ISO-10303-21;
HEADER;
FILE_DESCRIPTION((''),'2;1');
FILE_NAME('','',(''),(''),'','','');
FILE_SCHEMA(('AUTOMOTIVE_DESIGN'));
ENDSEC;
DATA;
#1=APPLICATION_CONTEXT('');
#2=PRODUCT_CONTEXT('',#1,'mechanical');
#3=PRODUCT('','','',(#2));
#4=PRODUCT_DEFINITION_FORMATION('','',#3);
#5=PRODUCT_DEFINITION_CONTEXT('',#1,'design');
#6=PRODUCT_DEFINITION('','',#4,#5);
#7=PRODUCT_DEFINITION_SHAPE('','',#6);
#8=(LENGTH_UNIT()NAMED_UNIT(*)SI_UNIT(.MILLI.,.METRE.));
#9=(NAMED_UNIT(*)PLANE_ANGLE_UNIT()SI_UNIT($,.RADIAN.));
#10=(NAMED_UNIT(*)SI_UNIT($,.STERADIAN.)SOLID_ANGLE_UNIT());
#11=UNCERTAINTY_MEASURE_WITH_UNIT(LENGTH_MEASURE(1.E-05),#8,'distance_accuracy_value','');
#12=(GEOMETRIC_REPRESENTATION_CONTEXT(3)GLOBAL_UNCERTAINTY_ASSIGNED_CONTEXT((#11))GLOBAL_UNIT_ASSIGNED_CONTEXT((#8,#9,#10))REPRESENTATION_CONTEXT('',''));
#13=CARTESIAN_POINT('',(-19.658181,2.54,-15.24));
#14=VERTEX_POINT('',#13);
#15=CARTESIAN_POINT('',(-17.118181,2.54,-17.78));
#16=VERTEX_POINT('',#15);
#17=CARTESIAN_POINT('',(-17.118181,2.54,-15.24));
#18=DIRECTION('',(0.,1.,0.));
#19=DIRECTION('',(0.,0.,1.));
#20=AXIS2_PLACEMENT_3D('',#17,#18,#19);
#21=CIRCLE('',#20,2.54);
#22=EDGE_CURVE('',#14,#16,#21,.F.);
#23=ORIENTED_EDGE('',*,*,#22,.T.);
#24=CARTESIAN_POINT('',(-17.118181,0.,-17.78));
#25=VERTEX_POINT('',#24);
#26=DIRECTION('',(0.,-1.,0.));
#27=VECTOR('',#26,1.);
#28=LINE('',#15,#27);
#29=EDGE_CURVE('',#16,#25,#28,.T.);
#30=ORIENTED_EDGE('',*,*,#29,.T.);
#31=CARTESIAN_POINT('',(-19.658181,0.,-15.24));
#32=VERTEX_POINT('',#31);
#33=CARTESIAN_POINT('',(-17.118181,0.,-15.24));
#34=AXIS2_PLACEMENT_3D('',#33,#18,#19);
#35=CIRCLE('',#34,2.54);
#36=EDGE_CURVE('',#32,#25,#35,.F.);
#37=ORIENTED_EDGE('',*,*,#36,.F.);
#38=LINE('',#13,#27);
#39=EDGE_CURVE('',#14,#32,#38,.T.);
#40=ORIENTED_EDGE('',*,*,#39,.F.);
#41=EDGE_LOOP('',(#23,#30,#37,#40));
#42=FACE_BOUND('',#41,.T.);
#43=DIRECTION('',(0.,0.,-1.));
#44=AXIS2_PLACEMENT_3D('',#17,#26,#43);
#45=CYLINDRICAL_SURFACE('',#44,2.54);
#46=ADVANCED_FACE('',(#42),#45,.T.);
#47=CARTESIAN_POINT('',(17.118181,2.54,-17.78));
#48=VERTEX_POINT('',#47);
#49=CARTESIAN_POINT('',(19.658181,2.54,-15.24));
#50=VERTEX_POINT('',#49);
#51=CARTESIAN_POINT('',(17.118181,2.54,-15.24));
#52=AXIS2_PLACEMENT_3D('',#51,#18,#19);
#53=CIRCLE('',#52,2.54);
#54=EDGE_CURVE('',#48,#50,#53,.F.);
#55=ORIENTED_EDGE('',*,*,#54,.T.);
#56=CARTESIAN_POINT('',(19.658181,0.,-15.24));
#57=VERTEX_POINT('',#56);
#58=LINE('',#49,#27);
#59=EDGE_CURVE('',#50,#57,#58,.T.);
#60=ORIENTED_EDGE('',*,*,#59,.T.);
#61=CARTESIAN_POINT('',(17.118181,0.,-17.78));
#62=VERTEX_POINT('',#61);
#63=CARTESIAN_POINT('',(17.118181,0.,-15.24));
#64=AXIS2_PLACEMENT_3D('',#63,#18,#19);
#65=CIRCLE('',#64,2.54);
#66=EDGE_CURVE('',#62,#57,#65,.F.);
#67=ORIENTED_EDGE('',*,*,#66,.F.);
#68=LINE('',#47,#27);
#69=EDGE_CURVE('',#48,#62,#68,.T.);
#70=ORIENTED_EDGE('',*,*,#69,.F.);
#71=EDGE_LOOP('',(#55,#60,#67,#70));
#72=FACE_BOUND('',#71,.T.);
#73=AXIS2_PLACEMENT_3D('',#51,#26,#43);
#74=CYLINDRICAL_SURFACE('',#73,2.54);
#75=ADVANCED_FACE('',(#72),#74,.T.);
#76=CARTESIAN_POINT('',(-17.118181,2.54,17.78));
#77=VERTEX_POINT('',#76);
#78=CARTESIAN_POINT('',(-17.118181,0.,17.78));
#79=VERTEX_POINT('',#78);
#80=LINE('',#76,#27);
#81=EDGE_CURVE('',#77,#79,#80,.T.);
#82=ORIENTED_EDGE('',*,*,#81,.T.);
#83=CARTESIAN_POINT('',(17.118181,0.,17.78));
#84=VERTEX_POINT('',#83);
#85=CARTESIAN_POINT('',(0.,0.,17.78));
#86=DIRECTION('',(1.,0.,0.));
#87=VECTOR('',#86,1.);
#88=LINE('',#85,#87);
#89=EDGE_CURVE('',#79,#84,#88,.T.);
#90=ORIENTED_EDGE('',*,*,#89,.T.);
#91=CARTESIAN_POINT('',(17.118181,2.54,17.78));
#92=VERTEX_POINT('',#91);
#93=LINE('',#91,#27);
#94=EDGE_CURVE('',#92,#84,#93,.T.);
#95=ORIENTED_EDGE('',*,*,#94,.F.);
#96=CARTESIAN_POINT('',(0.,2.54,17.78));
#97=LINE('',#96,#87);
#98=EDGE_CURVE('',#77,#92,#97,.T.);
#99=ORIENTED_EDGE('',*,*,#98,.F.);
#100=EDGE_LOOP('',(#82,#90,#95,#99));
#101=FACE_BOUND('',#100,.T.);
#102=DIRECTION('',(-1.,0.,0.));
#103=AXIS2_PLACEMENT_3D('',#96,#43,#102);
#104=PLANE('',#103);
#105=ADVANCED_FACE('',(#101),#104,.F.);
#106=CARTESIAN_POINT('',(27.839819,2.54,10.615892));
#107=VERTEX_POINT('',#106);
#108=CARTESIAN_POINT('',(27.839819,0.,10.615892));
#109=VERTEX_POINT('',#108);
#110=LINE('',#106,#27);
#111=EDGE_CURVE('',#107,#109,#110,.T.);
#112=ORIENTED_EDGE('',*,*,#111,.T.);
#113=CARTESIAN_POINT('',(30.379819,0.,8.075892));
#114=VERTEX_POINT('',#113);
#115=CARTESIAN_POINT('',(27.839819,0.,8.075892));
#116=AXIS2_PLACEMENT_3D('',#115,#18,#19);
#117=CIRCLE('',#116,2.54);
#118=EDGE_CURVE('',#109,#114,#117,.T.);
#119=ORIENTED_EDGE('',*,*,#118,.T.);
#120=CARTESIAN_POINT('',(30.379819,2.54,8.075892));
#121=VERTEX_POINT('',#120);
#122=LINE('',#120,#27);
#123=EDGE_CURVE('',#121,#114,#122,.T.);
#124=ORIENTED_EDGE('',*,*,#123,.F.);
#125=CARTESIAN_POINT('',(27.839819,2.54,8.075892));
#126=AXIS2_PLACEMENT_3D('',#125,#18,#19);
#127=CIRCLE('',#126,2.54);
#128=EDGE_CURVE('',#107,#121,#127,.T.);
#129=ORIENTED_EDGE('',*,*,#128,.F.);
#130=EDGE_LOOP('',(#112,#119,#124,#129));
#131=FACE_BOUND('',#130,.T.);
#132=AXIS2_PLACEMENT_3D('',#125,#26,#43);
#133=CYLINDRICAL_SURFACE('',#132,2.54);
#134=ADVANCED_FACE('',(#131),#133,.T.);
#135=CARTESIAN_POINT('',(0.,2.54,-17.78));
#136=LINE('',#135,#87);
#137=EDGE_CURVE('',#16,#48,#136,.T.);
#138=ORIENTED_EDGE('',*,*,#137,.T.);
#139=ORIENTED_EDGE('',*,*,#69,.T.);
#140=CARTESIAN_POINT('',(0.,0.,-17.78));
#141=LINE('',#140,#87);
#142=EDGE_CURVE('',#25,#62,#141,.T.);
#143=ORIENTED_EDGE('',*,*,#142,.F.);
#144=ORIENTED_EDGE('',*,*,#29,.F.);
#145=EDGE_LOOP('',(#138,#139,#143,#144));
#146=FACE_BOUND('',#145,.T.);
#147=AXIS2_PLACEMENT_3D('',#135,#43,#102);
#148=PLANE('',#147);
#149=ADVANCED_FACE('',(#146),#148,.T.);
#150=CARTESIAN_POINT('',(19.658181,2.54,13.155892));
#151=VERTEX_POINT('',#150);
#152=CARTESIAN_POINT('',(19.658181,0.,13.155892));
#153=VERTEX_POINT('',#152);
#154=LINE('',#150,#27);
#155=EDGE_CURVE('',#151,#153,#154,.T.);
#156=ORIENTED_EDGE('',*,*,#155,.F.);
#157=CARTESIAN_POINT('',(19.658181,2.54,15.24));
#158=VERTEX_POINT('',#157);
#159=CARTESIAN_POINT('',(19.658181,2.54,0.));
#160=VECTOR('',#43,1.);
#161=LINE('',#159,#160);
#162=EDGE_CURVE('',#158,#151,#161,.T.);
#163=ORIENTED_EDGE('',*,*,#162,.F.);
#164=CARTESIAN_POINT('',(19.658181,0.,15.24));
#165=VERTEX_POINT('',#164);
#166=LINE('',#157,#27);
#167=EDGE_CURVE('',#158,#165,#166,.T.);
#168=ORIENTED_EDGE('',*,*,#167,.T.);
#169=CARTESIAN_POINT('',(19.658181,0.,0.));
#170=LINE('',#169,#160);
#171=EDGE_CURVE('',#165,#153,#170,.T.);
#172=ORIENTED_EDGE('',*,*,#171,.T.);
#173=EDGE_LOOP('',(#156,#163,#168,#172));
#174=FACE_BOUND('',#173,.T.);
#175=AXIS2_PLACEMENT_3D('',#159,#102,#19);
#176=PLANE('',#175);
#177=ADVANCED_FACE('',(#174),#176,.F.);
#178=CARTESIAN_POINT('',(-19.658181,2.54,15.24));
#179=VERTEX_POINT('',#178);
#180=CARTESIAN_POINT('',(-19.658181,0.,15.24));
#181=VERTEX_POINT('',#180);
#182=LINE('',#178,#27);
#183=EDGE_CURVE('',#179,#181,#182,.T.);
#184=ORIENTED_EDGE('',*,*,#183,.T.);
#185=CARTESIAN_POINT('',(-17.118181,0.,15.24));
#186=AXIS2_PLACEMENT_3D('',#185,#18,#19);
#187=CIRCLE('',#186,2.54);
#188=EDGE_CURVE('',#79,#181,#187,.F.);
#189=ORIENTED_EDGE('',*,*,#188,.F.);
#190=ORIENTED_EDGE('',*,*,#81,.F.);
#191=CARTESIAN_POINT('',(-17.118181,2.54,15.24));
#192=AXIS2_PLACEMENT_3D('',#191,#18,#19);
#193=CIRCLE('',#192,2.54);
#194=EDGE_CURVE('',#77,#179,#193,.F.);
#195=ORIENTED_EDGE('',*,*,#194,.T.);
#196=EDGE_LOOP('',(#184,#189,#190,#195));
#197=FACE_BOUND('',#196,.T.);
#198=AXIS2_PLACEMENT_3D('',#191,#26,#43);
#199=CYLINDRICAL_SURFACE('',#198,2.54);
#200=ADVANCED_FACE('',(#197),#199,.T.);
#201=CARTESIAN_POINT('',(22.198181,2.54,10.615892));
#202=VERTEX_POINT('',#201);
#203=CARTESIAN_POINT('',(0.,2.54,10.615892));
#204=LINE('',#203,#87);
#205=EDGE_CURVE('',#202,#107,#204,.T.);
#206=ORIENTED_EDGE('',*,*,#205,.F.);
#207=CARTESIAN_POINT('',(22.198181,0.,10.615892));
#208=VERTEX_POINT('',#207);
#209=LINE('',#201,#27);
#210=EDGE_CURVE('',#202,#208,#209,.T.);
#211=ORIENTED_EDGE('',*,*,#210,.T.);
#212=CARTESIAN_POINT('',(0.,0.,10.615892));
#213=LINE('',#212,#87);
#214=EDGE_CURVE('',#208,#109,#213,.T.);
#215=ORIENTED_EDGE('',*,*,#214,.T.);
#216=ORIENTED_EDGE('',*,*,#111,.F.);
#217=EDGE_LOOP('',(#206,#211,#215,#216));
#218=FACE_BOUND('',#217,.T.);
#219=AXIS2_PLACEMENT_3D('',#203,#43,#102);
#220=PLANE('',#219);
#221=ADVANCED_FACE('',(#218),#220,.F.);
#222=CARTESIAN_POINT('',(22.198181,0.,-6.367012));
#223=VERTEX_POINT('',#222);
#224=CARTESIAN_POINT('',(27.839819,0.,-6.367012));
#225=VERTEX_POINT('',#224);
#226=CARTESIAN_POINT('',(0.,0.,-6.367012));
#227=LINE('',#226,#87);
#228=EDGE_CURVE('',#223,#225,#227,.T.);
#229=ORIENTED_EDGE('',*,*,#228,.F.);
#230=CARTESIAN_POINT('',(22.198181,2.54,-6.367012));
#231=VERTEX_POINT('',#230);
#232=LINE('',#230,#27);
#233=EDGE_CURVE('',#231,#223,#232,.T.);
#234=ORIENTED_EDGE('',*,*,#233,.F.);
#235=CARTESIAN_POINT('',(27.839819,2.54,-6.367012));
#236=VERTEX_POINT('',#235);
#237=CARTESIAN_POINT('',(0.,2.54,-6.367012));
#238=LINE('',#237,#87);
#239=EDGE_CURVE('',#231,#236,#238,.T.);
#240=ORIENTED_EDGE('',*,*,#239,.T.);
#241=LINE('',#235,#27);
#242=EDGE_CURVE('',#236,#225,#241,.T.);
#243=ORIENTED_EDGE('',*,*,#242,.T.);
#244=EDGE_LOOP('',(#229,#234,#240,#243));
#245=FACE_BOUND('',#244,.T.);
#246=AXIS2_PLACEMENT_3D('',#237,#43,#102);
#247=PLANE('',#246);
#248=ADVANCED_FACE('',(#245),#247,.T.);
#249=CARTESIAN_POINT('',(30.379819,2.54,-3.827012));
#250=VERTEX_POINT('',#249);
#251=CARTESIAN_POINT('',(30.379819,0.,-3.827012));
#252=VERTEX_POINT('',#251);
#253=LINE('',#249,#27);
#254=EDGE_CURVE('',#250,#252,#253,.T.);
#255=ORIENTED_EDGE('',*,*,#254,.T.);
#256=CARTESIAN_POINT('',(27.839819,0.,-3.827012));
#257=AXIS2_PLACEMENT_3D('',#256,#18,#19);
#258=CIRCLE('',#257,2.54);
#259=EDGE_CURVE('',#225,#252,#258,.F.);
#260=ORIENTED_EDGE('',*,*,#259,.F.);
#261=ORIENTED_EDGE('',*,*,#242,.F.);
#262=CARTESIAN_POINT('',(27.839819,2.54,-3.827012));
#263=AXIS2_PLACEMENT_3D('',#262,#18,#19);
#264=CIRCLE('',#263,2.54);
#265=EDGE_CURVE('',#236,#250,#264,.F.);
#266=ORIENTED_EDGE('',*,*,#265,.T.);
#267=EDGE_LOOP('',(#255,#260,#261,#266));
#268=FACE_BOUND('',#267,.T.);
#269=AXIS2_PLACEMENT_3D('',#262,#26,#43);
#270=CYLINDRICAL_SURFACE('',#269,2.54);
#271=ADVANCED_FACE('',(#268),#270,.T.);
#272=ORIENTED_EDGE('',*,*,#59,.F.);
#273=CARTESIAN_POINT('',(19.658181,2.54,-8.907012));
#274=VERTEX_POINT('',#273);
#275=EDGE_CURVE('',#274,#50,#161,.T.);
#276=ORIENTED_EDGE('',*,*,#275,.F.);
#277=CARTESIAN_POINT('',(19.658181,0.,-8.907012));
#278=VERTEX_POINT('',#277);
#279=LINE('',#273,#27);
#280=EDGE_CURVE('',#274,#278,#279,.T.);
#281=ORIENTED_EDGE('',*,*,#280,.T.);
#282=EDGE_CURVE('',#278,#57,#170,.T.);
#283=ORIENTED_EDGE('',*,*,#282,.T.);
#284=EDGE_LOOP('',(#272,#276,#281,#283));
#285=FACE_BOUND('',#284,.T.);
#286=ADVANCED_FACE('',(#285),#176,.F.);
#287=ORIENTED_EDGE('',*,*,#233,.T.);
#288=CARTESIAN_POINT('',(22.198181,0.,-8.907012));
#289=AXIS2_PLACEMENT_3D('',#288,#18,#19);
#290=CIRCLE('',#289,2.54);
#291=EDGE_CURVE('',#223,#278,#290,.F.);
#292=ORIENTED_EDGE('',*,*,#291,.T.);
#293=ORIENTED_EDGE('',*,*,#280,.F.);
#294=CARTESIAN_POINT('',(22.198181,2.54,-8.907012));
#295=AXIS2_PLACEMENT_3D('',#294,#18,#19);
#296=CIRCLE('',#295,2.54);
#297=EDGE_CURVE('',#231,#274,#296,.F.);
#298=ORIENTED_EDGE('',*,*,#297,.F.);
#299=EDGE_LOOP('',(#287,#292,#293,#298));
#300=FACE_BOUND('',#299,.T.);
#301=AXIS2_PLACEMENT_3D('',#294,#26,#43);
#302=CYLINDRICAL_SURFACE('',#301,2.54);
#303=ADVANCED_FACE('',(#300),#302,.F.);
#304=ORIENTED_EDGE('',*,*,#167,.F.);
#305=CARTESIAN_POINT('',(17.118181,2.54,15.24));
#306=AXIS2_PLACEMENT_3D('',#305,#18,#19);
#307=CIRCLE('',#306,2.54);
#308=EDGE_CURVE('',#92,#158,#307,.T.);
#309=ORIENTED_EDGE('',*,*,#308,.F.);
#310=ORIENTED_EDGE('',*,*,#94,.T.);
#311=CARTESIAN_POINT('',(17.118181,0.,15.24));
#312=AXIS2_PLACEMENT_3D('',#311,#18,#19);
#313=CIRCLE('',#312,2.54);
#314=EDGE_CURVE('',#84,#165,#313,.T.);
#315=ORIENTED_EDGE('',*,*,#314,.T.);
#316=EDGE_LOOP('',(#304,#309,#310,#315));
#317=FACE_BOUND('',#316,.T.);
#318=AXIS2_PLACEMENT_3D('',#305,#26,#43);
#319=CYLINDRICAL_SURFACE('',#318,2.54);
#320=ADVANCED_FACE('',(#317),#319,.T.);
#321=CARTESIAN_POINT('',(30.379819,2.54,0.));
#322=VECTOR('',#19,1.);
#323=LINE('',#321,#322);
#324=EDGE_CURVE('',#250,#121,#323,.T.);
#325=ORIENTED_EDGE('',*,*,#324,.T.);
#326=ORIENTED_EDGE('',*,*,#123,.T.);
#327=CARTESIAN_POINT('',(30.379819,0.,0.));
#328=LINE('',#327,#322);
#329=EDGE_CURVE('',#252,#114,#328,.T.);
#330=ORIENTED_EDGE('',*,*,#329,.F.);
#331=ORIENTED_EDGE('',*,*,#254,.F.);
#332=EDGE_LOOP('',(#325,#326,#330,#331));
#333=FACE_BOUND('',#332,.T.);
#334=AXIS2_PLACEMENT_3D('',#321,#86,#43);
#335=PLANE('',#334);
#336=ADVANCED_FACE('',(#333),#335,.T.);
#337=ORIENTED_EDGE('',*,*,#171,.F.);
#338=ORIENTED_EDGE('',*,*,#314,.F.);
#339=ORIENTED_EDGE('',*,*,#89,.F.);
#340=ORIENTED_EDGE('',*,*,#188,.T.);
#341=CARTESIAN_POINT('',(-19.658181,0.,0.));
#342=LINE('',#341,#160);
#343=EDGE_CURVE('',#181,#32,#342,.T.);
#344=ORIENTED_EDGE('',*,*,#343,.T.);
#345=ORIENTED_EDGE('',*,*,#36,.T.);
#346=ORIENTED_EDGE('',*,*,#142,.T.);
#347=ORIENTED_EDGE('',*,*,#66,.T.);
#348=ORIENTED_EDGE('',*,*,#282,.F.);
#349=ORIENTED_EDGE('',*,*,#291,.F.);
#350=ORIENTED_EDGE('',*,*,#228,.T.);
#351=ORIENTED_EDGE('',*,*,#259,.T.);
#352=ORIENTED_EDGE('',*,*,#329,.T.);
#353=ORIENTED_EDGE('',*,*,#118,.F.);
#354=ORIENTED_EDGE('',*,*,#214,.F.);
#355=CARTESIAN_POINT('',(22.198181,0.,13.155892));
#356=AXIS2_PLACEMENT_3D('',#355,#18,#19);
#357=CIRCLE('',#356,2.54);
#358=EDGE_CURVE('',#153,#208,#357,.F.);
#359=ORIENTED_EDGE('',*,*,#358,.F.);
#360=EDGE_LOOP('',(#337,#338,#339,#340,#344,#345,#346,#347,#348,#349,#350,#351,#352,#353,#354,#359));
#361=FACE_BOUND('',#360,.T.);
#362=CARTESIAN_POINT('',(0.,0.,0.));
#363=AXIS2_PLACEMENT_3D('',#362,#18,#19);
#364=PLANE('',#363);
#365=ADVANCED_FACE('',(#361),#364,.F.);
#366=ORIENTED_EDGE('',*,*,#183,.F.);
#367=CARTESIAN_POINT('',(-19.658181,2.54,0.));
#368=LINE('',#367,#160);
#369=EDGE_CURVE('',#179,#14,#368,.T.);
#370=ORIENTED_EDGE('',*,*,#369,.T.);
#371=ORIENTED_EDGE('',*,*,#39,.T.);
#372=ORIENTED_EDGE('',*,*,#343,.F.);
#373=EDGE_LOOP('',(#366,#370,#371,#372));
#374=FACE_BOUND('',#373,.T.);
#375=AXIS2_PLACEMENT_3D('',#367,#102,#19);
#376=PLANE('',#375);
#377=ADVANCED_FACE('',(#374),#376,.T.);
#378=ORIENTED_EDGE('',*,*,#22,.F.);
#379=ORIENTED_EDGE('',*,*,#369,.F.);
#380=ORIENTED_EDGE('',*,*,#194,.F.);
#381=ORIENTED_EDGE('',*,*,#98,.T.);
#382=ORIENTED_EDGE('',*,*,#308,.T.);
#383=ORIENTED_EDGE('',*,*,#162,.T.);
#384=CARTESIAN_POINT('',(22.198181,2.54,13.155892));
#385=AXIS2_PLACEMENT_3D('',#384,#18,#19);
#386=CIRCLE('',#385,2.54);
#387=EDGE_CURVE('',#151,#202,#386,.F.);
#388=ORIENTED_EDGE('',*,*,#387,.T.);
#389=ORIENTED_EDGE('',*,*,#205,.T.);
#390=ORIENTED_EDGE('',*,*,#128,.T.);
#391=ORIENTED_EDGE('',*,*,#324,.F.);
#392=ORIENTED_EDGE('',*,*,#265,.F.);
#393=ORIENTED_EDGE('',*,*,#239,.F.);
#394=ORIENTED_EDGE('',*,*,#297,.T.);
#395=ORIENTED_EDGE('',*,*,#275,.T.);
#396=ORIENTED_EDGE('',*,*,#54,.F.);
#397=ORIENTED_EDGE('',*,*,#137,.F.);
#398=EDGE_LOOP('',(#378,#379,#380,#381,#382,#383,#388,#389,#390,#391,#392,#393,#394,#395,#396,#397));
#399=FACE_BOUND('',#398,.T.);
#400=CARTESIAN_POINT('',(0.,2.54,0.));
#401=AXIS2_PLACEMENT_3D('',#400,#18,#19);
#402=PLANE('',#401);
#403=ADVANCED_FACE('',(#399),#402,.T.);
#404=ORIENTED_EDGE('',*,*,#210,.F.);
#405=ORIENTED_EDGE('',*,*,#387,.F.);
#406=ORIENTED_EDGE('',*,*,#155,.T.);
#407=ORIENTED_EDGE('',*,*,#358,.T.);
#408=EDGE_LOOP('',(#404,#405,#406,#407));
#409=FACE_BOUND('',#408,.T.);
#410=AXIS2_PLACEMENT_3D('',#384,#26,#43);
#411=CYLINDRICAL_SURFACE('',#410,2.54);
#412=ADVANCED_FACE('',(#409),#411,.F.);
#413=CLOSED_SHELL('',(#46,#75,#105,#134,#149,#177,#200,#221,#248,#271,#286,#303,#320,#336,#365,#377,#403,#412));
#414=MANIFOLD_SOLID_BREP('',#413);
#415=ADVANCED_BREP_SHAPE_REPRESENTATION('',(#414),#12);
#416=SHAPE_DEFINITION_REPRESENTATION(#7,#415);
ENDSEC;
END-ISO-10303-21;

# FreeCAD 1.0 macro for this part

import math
import FreeCAD as App
import Part
import Sketcher

V = App.Vector
Q = App.Units.Quantity

doc = App.newDocument("Part")
body = doc.addObject("PartDesign::Body", "Body")

# Sketch on XZ plane
sketch1 = doc.addObject("Sketcher::SketchObject", "Sketch")
body.addObject(sketch1)
sketch1.AttachmentSupport = (doc.XZ_Plane, [""])
sketch1.MapMode = "FlatFace"
sketch1.addGeometry([
    Part.LineSegment(V(19.7, -8.9, 0), V(19.7, -15.2, 0)),  # 0
    Part.ArcOfCircle(Part.Circle(V(17.1, -15.2, 0), V(0, 0, 1), 2.5), math.radians(-90), math.radians(0)),  # 1
    Part.LineSegment(V(17.1, -17.8, 0), V(-17.1, -17.8, 0)),  # 2
    Part.ArcOfCircle(Part.Circle(V(-17.1, -15.2, 0), V(0, 0, 1), 2.5), math.radians(180), math.radians(270)),  # 3
    Part.LineSegment(V(-19.7, -15.2, 0), V(-19.7, 15.2, 0)),  # 4
    Part.ArcOfCircle(Part.Circle(V(-17.1, 15.2, 0), V(0, 0, 1), 2.5), math.radians(90), math.radians(180)),  # 5
    Part.LineSegment(V(-17.1, 17.8, 0), V(17.1, 17.8, 0)),  # 6
    Part.ArcOfCircle(Part.Circle(V(17.1, 15.2, 0), V(0, 0, 1), 2.5), math.radians(0), math.radians(90)),  # 7
    Part.LineSegment(V(19.7, 15.2, 0), V(19.7, 13.2, 0)),  # 8
    Part.ArcOfCircle(Part.Circle(V(22.2, 13.2, 0), V(0, 0, 1), 2.5), math.radians(-180), math.radians(-90)),  # 9
    Part.LineSegment(V(22.2, 10.6, 0), V(27.8, 10.6, 0)),  # 10
    Part.ArcOfCircle(Part.Circle(V(27.8, 8.1, 0), V(0, 0, 1), 2.5), math.radians(0), math.radians(90)),  # 11
    Part.LineSegment(V(30.4, 8.1, 0), V(30.4, -3.8, 0)),  # 12
    Part.ArcOfCircle(Part.Circle(V(27.8, -3.8, 0), V(0, 0, 1), 2.5), math.radians(-90), math.radians(0)),  # 13
    Part.LineSegment(V(27.8, -6.4, 0), V(22.2, -6.4, 0)),  # 14
    Part.ArcOfCircle(Part.Circle(V(22.2, -8.9, 0), V(0, 0, 1), 2.5), math.radians(90), math.radians(180)),  # 15
], False)
sketch1.addConstraint([
    Sketcher.Constraint("Tangent", 0, 2, 1, 2),
    Sketcher.Constraint("Tangent", 1, 1, 2, 1),
    Sketcher.Constraint("Tangent", 2, 2, 3, 2),
    Sketcher.Constraint("Tangent", 3, 1, 4, 1),
    Sketcher.Constraint("Tangent", 4, 2, 5, 2),
    Sketcher.Constraint("Tangent", 5, 1, 6, 1),
    Sketcher.Constraint("Tangent", 6, 2, 7, 2),
    Sketcher.Constraint("Tangent", 7, 1, 8, 1),
    Sketcher.Constraint("Tangent", 8, 2, 9, 1),
    Sketcher.Constraint("Tangent", 9, 2, 10, 1),
    Sketcher.Constraint("Tangent", 10, 2, 11, 2),
    Sketcher.Constraint("Tangent", 11, 1, 12, 1),
    Sketcher.Constraint("Tangent", 12, 2, 13, 2),
    Sketcher.Constraint("Tangent", 13, 1, 14, 1),
    Sketcher.Constraint("Tangent", 14, 2, 15, 1),
    Sketcher.Constraint("Tangent", 15, 2, 0, 1),
    Sketcher.Constraint("Vertical", 0),
    Sketcher.Constraint("Horizontal", 2),
    Sketcher.Constraint("Vertical", 4),
    Sketcher.Constraint("Horizontal", 6),
    Sketcher.Constraint("Vertical", 8),
    Sketcher.Constraint("Horizontal", 10),
    Sketcher.Constraint("Vertical", 12),
    Sketcher.Constraint("Horizontal", 14),
    Sketcher.Constraint("Equal", 1, 3),
    Sketcher.Constraint("Equal", 3, 5),
    Sketcher.Constraint("Equal", 5, 7),
    Sketcher.Constraint("Equal", 7, 9),
    Sketcher.Constraint("Equal", 9, 11),
    Sketcher.Constraint("Equal", 11, 13),
    Sketcher.Constraint("Equal", 13, 15),
    Sketcher.Constraint("Symmetric", 1, 3, 5, 3, -1, 1),
    Sketcher.Constraint("Vertical", 1, 3, 7, 3),
    Sketcher.Constraint("Radius", 1, Q("0.1 in")),
    Sketcher.Constraint("DistanceY", 4, 1, 4, 2, Q("1.2 in")),
    Sketcher.Constraint("DistanceX", 5, 3, 11, 3, Q("1.77 in")),
    Sketcher.Constraint("DistanceY", 8, 2, 8, 1, Q("2.084108 mm")),
    Sketcher.Constraint("DistanceX", 2, 2, 2, 1, Q("34.236362 mm")),
    Sketcher.Constraint("DistanceY", 0, 2, 0, 1, Q("6.332988 mm")),
])
pad1 = doc.addObject("PartDesign::Pad", "Pad")
body.addObject(pad1)
pad1.Profile = sketch1
pad1.Length = Q("0.1 in")
pad1.Reversed = True

doc.recompute()
